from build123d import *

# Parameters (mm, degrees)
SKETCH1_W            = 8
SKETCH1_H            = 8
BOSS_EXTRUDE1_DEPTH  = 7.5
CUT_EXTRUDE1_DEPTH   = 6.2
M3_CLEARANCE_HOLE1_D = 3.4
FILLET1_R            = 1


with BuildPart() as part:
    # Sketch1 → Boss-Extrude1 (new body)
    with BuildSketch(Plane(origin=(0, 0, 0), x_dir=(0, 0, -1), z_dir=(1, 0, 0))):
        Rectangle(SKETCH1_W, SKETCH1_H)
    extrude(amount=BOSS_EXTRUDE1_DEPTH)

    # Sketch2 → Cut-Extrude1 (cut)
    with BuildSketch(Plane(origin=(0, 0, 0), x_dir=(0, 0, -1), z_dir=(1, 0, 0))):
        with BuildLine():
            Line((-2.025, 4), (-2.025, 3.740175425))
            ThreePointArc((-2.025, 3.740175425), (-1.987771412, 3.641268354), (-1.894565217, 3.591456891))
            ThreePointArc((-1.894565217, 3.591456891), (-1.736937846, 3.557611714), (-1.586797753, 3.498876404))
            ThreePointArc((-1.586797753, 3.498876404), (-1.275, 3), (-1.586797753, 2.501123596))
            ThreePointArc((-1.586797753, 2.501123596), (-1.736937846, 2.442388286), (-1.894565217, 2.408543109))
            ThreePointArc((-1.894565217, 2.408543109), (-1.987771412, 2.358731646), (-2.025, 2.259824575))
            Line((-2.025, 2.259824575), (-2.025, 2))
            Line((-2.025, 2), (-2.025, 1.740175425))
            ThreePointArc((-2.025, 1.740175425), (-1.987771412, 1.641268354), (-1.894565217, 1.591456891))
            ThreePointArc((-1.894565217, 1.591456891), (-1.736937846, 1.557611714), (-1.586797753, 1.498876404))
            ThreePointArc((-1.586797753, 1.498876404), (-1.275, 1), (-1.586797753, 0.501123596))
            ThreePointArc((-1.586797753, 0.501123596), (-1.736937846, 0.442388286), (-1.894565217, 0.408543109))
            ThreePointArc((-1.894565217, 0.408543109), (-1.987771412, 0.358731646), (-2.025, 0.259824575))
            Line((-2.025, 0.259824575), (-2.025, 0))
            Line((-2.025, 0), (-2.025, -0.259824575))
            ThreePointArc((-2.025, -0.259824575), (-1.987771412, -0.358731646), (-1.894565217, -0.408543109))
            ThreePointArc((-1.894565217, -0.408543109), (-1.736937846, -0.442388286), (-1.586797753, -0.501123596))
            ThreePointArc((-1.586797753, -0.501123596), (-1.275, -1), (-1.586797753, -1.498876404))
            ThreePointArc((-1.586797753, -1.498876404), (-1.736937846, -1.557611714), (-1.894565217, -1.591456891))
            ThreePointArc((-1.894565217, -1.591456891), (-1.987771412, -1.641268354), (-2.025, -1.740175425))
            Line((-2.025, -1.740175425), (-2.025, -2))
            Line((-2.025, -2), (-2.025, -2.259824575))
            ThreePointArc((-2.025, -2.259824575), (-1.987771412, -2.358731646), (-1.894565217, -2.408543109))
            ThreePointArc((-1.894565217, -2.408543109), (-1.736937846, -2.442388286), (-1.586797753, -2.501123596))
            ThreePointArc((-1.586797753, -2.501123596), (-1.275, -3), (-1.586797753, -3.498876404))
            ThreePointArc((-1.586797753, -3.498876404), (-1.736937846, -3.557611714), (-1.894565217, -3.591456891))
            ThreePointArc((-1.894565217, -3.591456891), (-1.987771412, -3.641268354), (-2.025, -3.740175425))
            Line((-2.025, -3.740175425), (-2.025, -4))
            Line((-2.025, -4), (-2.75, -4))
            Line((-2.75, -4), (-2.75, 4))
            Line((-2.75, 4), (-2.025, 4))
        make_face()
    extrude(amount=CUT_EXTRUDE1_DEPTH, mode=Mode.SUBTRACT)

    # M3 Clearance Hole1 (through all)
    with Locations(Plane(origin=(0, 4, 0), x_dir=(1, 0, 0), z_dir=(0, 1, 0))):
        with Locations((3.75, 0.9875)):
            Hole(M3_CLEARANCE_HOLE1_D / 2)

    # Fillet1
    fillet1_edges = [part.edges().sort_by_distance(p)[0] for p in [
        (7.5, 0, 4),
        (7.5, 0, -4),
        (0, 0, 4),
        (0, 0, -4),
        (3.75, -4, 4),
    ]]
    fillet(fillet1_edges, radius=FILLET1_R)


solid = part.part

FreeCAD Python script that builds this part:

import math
import FreeCAD as App
import Part
import Sketcher
from FreeCAD import Vector
Q = App.Units.Quantity


def edges_at(feature, points):
    """Names of the edges that pass closest to the given points."""
    edges = feature.Shape.Edges
    near = lambda p: min(range(len(edges)), key=lambda i: edges[i].distToShape(Part.Vertex(*p))[0])
    return sorted({f"Edge{near(p) + 1}" for p in points})


def add_polygon(sketch, points):
    """Adds a closed chain of lines whose ends are joined by coincident constraints."""
    first, n = sketch.GeometryCount, len(points)
    for a, b in zip(points, points[1:] + points[:1]):
        sketch.addGeometry(Part.LineSegment(App.Vector(*a, 0), App.Vector(*b, 0)), False)
    for i in range(n):
        sketch.addConstraint(Sketcher.Constraint("Coincident", first + i, 2, first + (i + 1) % n, 1))

doc = App.newDocument("Part")
body = doc.addObject("PartDesign::Body", "Body")

sketch1 = body.newObject("Sketcher::SketchObject", "Sketch")
sketch1.AttachmentSupport = (doc.getObject("YZ_Plane"), [""])
sketch1.MapMode = "FlatFace"
add_polygon(sketch1, [(4, 4), (-4, 4), (-4, -4), (4, -4)])
sketch1.addConstraint([
    Sketcher.Constraint("Horizontal", 0),
    Sketcher.Constraint("Vertical", 1),
    Sketcher.Constraint("Horizontal", 2),
    Sketcher.Constraint("Vertical", 3),
    Sketcher.Constraint("Symmetric", 0, 2, 2, 2, -1, 1),
    Sketcher.Constraint("Equal", 2, 1),
    Sketcher.Constraint("DistanceX", 0, 2, 0, 1, Q("8 mm")),
])
pad1 = body.newObject("PartDesign::Pad", "Pad")
pad1.Profile = sketch1
pad1.Length = 7.5

sketch2 = body.newObject("Sketcher::SketchObject", "Sketch001")
sketch2.AttachmentSupport = (doc.getObject("YZ_Plane"), [""])
sketch2.MapMode = "FlatFace"
sketch2.addGeometry([
    Part.LineSegment(Vector(3.740175, 2.025, 0), Vector(4, 2.025, 0)),
    Part.LineSegment(Vector(4, 2.025, 0), Vector(4, 2.75, 0)),
    Part.LineSegment(Vector(4, 2.75, 0), Vector(-4, 2.75, 0)),
    Part.LineSegment(Vector(-4, 2.75, 0), Vector(-4, 2.025, 0)),
    Part.LineSegment(Vector(-4, 2.025, 0), Vector(-3.740175, 2.025, 0)),
    Part.ArcOfCircle(Part.Circle(Vector(-3.740175, 1.875, 0), Vector(0, 0, 1), 0.15), math.radians(7.494717), math.radians(90)),
    Part.ArcOfCircle(Part.Circle(Vector(-2.6, 2.025, 0), Vector(0, 0, 1), 1), math.radians(-172.505283), math.radians(-154.010766)),
    Part.ArcOfCircle(Part.Circle(Vector(-3, 1.83, 0), Vector(0, 0, 1), 0.555), math.radians(-154.010767), math.radians(-25.989233)),
    Part.ArcOfCircle(Part.Circle(Vector(-3.4, 2.025, 0), Vector(0, 0, 1), 1), math.radians(-25.989234), math.radians(-7.494717)),
    Part.ArcOfCircle(Part.Circle(Vector(-2.259825, 1.875, 0), Vector(0, 0, 1), 0.15), math.radians(90), math.radians(172.505283)),
    Part.LineSegment(Vector(-2.259825, 2.025, 0), Vector(-1.740175, 2.025, 0)),
    Part.ArcOfCircle(Part.Circle(Vector(-1.740175, 1.875, 0), Vector(0, 0, 1), 0.15), math.radians(7.494717), math.radians(90)),
    Part.ArcOfCircle(Part.Circle(Vector(-0.6, 2.025, 0), Vector(0, 0, 1), 1), math.radians(-172.505283), math.radians(-154.010766)),
    Part.ArcOfCircle(Part.Circle(Vector(-1, 1.83, 0), Vector(0, 0, 1), 0.555), math.radians(-154.010767), math.radians(-25.989233)),
    Part.ArcOfCircle(Part.Circle(Vector(-1.4, 2.025, 0), Vector(0, 0, 1), 1), math.radians(-25.989234), math.radians(-7.494717)),
    Part.ArcOfCircle(Part.Circle(Vector(-0.259825, 1.875, 0), Vector(0, 0, 1), 0.15), math.radians(90), math.radians(172.505283)),
    Part.LineSegment(Vector(-0.259825, 2.025, 0), Vector(0.259825, 2.025, 0)),
    Part.ArcOfCircle(Part.Circle(Vector(0.259825, 1.875, 0), Vector(0, 0, 1), 0.15), math.radians(7.494717), math.radians(90)),
    Part.ArcOfCircle(Part.Circle(Vector(1.4, 2.025, 0), Vector(0, 0, 1), 1), math.radians(-172.505283), math.radians(-154.010766)),
    Part.ArcOfCircle(Part.Circle(Vector(1, 1.83, 0), Vector(0, 0, 1), 0.555), math.radians(-154.010767), math.radians(-25.989233)),
    Part.ArcOfCircle(Part.Circle(Vector(0.6, 2.025, 0), Vector(0, 0, 1), 1), math.radians(-25.989234), math.radians(-7.494717)),
    Part.ArcOfCircle(Part.Circle(Vector(1.740175, 1.875, 0), Vector(0, 0, 1), 0.15), math.radians(90), math.radians(172.505283)),
    Part.LineSegment(Vector(1.740175, 2.025, 0), Vector(2.259825, 2.025, 0)),
    Part.ArcOfCircle(Part.Circle(Vector(2.259825, 1.875, 0), Vector(0, 0, 1), 0.15), math.radians(7.494717), math.radians(90)),
    Part.ArcOfCircle(Part.Circle(Vector(3.4, 2.025, 0), Vector(0, 0, 1), 1), math.radians(-172.505283), math.radians(-154.010766)),
    Part.ArcOfCircle(Part.Circle(Vector(3, 1.83, 0), Vector(0, 0, 1), 0.555), math.radians(-154.010767), math.radians(-25.989233)),
    Part.ArcOfCircle(Part.Circle(Vector(2.6, 2.025, 0), Vector(0, 0, 1), 1), math.radians(-25.989234), math.radians(-7.494717)),
    Part.ArcOfCircle(Part.Circle(Vector(3.740175, 1.875, 0), Vector(0, 0, 1), 0.15), math.radians(90), math.radians(172.505283)),
], False)
sketch2.addConstraint([
    Sketcher.Constraint("Coincident", 0, 2, 1, 1),
    Sketcher.Constraint("Coincident", 1, 2, 2, 1),
    Sketcher.Constraint("Coincident", 2, 2, 3, 1),
    Sketcher.Constraint("Coincident", 3, 2, 4, 1),
    Sketcher.Constraint("Tangent", 4, 2, 5, 2),
    Sketcher.Constraint("Tangent", 5, 1, 6, 1),
    Sketcher.Constraint("Tangent", 6, 2, 7, 1),
    Sketcher.Constraint("Tangent", 7, 2, 8, 1),
    Sketcher.Constraint("Tangent", 8, 2, 9, 2),
    Sketcher.Constraint("Tangent", 9, 1, 10, 1),
    Sketcher.Constraint("Tangent", 10, 2, 11, 2),
    Sketcher.Constraint("Tangent", 11, 1, 12, 1),
    Sketcher.Constraint("Tangent", 12, 2, 13, 1),
    Sketcher.Constraint("Tangent", 13, 2, 14, 1),
    Sketcher.Constraint("Tangent", 14, 2, 15, 2),
    Sketcher.Constraint("Tangent", 15, 1, 16, 1),
    Sketcher.Constraint("Tangent", 16, 2, 17, 2),
    Sketcher.Constraint("Tangent", 17, 1, 18, 1),
    Sketcher.Constraint("Tangent", 18, 2, 19, 1),
    Sketcher.Constraint("Tangent", 19, 2, 20, 1),
    Sketcher.Constraint("Tangent", 20, 2, 21, 2),
    Sketcher.Constraint("Tangent", 21, 1, 22, 1),
    Sketcher.Constraint("Tangent", 22, 2, 23, 2),
    Sketcher.Constraint("Tangent", 23, 1, 24, 1),
    Sketcher.Constraint("Tangent", 24, 2, 25, 1),
    Sketcher.Constraint("Tangent", 25, 2, 26, 1),
    Sketcher.Constraint("Tangent", 26, 2, 27, 2),
    Sketcher.Constraint("Tangent", 27, 1, 0, 1),
    Sketcher.Constraint("Horizontal", 0),
    Sketcher.Constraint("Vertical", 1),
    Sketcher.Constraint("Horizontal", 2),
    Sketcher.Constraint("Vertical", 3),
    Sketcher.Constraint("Horizontal", 4),
    Sketcher.Constraint("Horizontal", 10),
    Sketcher.Constraint("Horizontal", 16),
    Sketcher.Constraint("Horizontal", 22),
    Sketcher.Constraint("Equal", 6, 8),
    Sketcher.Constraint("Equal", 5, 9),
    Sketcher.Constraint("Equal", 9, 11),
    Sketcher.Constraint("Equal", 8, 12),
    Sketcher.Constraint("Equal", 7, 13),
    Sketcher.Constraint("Equal", 12, 14),
    Sketcher.Constraint("Equal", 11, 15),
    Sketcher.Constraint("Equal", 15, 17),
    Sketcher.Constraint("Equal", 14, 18),
    Sketcher.Constraint("Equal", 13, 19),
    Sketcher.Constraint("Equal", 18, 20),
    Sketcher.Constraint("Equal", 17, 21),
    Sketcher.Constraint("Equal", 21, 23),
    Sketcher.Constraint("Equal", 20, 24),
    Sketcher.Constraint("Equal", 19, 25),
    Sketcher.Constraint("Equal", 24, 26),
    Sketcher.Constraint("Equal", 23, 27),
    Sketcher.Constraint("Symmetric", 14, 3, 18, 3, -2),
    Sketcher.Constraint("Symmetric", 12, 3, 20, 3, -2),
    Sketcher.Constraint("Symmetric", 9, 3, 23, 3, -2),
    Sketcher.Constraint("Symmetric", 7, 3, 25, 3, -2),
    Sketcher.Constraint("Symmetric", 5, 3, 27, 3, -2),
    Sketcher.Constraint("Horizontal", 6, 3, 8, 3),
    Sketcher.Constraint("Horizontal", 5, 3, 9, 3),
    Sketcher.Constraint("Horizontal", 8, 3, 12, 3),
    Sketcher.Constraint("Horizontal", 7, 3, 13, 3),
    Sketcher.Constraint("Horizontal", 12, 3, 14, 3),
    Sketcher.Constraint("Horizontal", 11, 3, 15, 3),
    Sketcher.Constraint("Horizontal", 26, 3, 0, 2),
    Sketcher.Constraint("Equal", 0, 4),
    Sketcher.Constraint("Equal", 10, 16),
    Sketcher.Constraint("Radius", 6, Q("1 mm")),
    Sketcher.Constraint("DistanceX", 2, 2, 2, 1, Q("8 mm")),
    Sketcher.Constraint("Radius", 5, Q("0.15 mm")),
    Sketcher.Constraint("DistanceX", 7, 3, -1, 1, Q("3 mm")),
    Sketcher.Constraint("Radius", 7, Q("0.555 mm")),
    Sketcher.Constraint("DistanceX", 6, 3, -1, 1, Q("2.6 mm")),
    Sketcher.Constraint("DistanceY", 1, 1, 1, 2, Q("0.725 mm")),
    Sketcher.Constraint("DistanceY", -1, 1, 7, 3, Q("1.83 mm")),
])
pocket1 = body.newObject("PartDesign::Pocket", "Pocket")
pocket1.Profile = sketch2
pocket1.Length = 6.2
pocket1.Reversed = True

sketch3 = body.newObject("Sketcher::SketchObject", "Sketch002")
sketch3.AttachmentSupport = (doc.getObject("XZ_Plane"), [""])
sketch3.MapMode = "FlatFace"
sketch3.AttachmentOffset = App.Placement(Vector(0, 0, -4), App.Rotation())
sketch3.addGeometry(Part.Circle(Vector(3.75, -0.9875, 0), Vector(0, 0, 1), 1.7), False)
sketch3.addConstraint([
    Sketcher.Constraint("Diameter", 0, Q("3.4 mm")),
    Sketcher.Constraint("DistanceX", -1, 1, 0, 3, Q("3.75 mm")),
    Sketcher.Constraint("DistanceY", 0, 3, -1, 1, Q("0.9875 mm")),
])
doc.recompute()
hole = body.newObject("PartDesign::Hole", "Hole")
hole.Profile = sketch3
hole.ThreadType = "None"
hole.Diameter = 3.4
hole.DepthType = "ThroughAll"
hole.Reversed = True
doc.recompute()

fillet = body.newObject("PartDesign::Fillet", "Fillet")
fillet.Base = (hole, edges_at(hole, [
    (7.5, 0, 4),
    (7.5, 0, -4),
    (0, 0, 4),
    (0, 0, -4),
    (3.75, -4, 4),
]))
fillet.Radius = 1

doc.recompute()
